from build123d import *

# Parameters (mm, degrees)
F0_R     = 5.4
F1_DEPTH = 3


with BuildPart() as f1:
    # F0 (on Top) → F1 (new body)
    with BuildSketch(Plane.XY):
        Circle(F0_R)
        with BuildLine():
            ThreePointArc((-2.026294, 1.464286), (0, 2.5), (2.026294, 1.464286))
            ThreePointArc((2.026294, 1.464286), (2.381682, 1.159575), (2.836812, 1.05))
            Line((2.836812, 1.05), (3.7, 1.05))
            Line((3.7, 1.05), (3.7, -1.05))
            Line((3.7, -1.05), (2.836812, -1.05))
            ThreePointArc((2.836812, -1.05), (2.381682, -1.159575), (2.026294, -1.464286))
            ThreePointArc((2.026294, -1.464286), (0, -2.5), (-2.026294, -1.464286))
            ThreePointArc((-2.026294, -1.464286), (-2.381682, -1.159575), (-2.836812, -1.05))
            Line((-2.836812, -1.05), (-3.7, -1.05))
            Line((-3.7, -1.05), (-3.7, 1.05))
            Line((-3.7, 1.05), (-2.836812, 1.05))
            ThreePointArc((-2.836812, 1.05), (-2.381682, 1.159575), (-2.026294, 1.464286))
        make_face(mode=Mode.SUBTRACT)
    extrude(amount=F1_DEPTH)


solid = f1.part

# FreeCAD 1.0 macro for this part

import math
import FreeCAD as App
import Part
import Sketcher

doc = App.newDocument("Part")
params = doc.addObject("Spreadsheet::Sheet", "Params")
for row, (alias, value) in enumerate([
    ("sketch1_radius", "1.000001 mm"),
    ("sketch1_diameter", "10.8 mm"),
    ("sketch1_radius2", "2.5 mm"),
    ("sketch1_height", "2.1 mm"),
    ("pad1_length", "3 mm"),
], start=1):
    params.set(f"A{row}", alias)
    params.set(f"B{row}", "=" + value)
    params.setAlias(f"B{row}", alias)

body = doc.addObject("PartDesign::Body", "Body")

# Sketch on XY plane
sketch1 = body.newObject("Sketcher::SketchObject", "Sketch")
sketch1.AttachmentSupport = (doc.getObject("XY_Plane"), [""])
sketch1.MapMode = "FlatFace"
sketch1.addGeometry([
    Part.Circle(App.Vector(0, 0, 0), App.Vector(0, 0, 1), 5.4),  # 0
    Part.ArcOfCircle(Part.Circle(App.Vector(-2.8, 2.1, 0), App.Vector(0, 0, 1), 1), math.radians(-90), math.radians(-36)),  # 1
    Part.ArcOfCircle(Part.Circle(App.Vector(0, 0, 0), App.Vector(0, 0, 1), 2.5), math.radians(36), math.radians(144)),  # 2
    Part.ArcOfCircle(Part.Circle(App.Vector(2.8, 2.1, 0), App.Vector(0, 0, 1), 1), math.radians(-144), math.radians(-90)),  # 3
    Part.LineSegment(App.Vector(2.8, 1.1, 0), App.Vector(3.7, 1.1, 0)),  # 4
    Part.LineSegment(App.Vector(3.7, 1.1, 0), App.Vector(3.7, -1.1, 0)),  # 5
    Part.LineSegment(App.Vector(3.7, -1.1, 0), App.Vector(2.8, -1.1, 0)),  # 6
    Part.ArcOfCircle(Part.Circle(App.Vector(2.8, -2.1, 0), App.Vector(0, 0, 1), 1), math.radians(90), math.radians(144)),  # 7
    Part.ArcOfCircle(Part.Circle(App.Vector(0, 0, 0), App.Vector(0, 0, 1), 2.5), math.radians(-144), math.radians(-36)),  # 8
    Part.ArcOfCircle(Part.Circle(App.Vector(-2.8, -2.1, 0), App.Vector(0, 0, 1), 1), math.radians(36), math.radians(90)),  # 9
    Part.LineSegment(App.Vector(-2.8, -1.1, 0), App.Vector(-3.7, -1.1, 0)),  # 10
    Part.LineSegment(App.Vector(-3.7, -1.1, 0), App.Vector(-3.7, 1.1, 0)),  # 11
    Part.LineSegment(App.Vector(-3.7, 1.1, 0), App.Vector(-2.8, 1.1, 0)),  # 12
], False)
sketch1.addConstraint([
    Sketcher.Constraint("Tangent", 1, 2, 2, 2),
    Sketcher.Constraint("Tangent", 2, 1, 3, 1),
    Sketcher.Constraint("Tangent", 3, 2, 4, 1),
    Sketcher.Constraint("Coincident", 4, 2, 5, 1),
    Sketcher.Constraint("Coincident", 5, 2, 6, 1),
    Sketcher.Constraint("Tangent", 6, 2, 7, 1),
    Sketcher.Constraint("Tangent", 7, 2, 8, 2),
    Sketcher.Constraint("Tangent", 8, 1, 9, 1),
    Sketcher.Constraint("Tangent", 9, 2, 10, 1),
    Sketcher.Constraint("Coincident", 10, 2, 11, 1),
    Sketcher.Constraint("Coincident", 11, 2, 12, 1),
    Sketcher.Constraint("Tangent", 12, 2, 1, 1),
    Sketcher.Constraint("Horizontal", 4),
    Sketcher.Constraint("Vertical", 5),
    Sketcher.Constraint("Horizontal", 6),
    Sketcher.Constraint("Horizontal", 10),
    Sketcher.Constraint("Vertical", 11),
    Sketcher.Constraint("Horizontal", 12),
    Sketcher.Constraint("Coincident", 0, 3, -1, 1),
    Sketcher.Constraint("Coincident", 2, 3, -1, 1),
    Sketcher.Constraint("Coincident", 8, 3, -1, 1),
    Sketcher.Constraint("Equal", 1, 3),
    Sketcher.Constraint("Equal", 3, 7),
    Sketcher.Constraint("Equal", 2, 8),
    Sketcher.Constraint("Equal", 7, 9),
    Sketcher.Constraint("Symmetric", 4, 2, 10, 2, -1, 1),
    Sketcher.Constraint("Horizontal", 1, 3, 3, 3),
    Sketcher.Constraint("Horizontal", 7, 3, 9, 3),
    Sketcher.Constraint("Radius", 1, 1.000001),
    Sketcher.Constraint("Diameter", 0, 10.8),
    Sketcher.Constraint("Radius", 2, 2.5),
    Sketcher.Constraint("DistanceY", 5, 2, 5, 1, 2.1),
    Sketcher.Constraint("DistanceX", -1, 1, 4, 2, 3.7),
])
sketch1.setExpression("Constraints[28]", "Params.sketch1_radius")
sketch1.setExpression("Constraints[29]", "Params.sketch1_diameter")
sketch1.setExpression("Constraints[30]", "Params.sketch1_radius2")
sketch1.setExpression("Constraints[31]", "Params.sketch1_height")
pad1 = body.newObject("PartDesign::Pad", "Pad")
pad1.Profile = sketch1
pad1.setExpression("Length", "Params.pad1_length")

doc.recompute()
